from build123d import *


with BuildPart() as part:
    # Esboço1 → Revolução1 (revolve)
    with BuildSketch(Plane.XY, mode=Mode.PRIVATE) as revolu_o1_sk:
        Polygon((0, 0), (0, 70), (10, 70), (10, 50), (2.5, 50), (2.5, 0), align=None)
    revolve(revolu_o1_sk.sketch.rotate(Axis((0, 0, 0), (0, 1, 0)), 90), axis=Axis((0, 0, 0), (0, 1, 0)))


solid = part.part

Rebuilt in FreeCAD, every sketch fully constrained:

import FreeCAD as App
import Part
import Sketcher
from FreeCAD import Vector

doc = App.newDocument("Part")
params = doc.addObject("Spreadsheet::Sheet", "Params")
for row, (alias, value) in enumerate([
    ("sketch1_width", "10 mm"),
    ("sketch1_height", "70 mm"),
    ("sketch1_height2", "50 mm"),
    ("sketch1_width2", "2.5 mm"),
    ("revolution_angle", "360 deg"),
], start=1):
    params.set(f"A{row}", alias)
    params.set(f"B{row}", "=" + value)
    params.setAlias(f"B{row}", alias)

body = doc.addObject("PartDesign::Body", "Body")

# Sketch on XY plane
sketch1 = doc.addObject("Sketcher::SketchObject", "Sketch")
body.addObject(sketch1)
sketch1.AttachmentSupport = (doc.XY_Plane, [""])
sketch1.MapMode = "FlatFace"
sketch1.addGeometry(Part.LineSegment(Vector(0, 70, 0), Vector(0, 0, 0)), False)
sketch1.addGeometry(Part.LineSegment(Vector(0, 0, 0), Vector(2.5, 0, 0)), False)
sketch1.addGeometry(Part.LineSegment(Vector(2.5, 0, 0), Vector(2.5, 50, 0)), False)
sketch1.addGeometry(Part.LineSegment(Vector(2.5, 50, 0), Vector(10, 50, 0)), False)
sketch1.addGeometry(Part.LineSegment(Vector(10, 50, 0), Vector(10, 70, 0)), False)
sketch1.addGeometry(Part.LineSegment(Vector(10, 70, 0), Vector(0, 70, 0)), False)
sketch1.addConstraint(Sketcher.Constraint("Coincident", 0, 2, 1, 1))
sketch1.addConstraint(Sketcher.Constraint("Coincident", 1, 2, 2, 1))
sketch1.addConstraint(Sketcher.Constraint("Coincident", 2, 2, 3, 1))
sketch1.addConstraint(Sketcher.Constraint("Coincident", 3, 2, 4, 1))
sketch1.addConstraint(Sketcher.Constraint("Coincident", 4, 2, 5, 1))
sketch1.addConstraint(Sketcher.Constraint("Coincident", 5, 2, 0, 1))
sketch1.addConstraint(Sketcher.Constraint("Vertical", 0))
sketch1.addConstraint(Sketcher.Constraint("Horizontal", 1))
sketch1.addConstraint(Sketcher.Constraint("Vertical", 2))
sketch1.addConstraint(Sketcher.Constraint("Horizontal", 3))
sketch1.addConstraint(Sketcher.Constraint("Vertical", 4))
sketch1.addConstraint(Sketcher.Constraint("Horizontal", 5))
sketch1.addConstraint(Sketcher.Constraint("Coincident", 0, 2, -1, 1))
sketch1.addConstraint(Sketcher.Constraint("DistanceX", 5, 2, 5, 1, 10.0))
sketch1.addConstraint(Sketcher.Constraint("DistanceY", 0, 2, 0, 1, 70.0))
sketch1.addConstraint(Sketcher.Constraint("DistanceY", 2, 1, 2, 2, 50.0))
sketch1.addConstraint(Sketcher.Constraint("DistanceX", 1, 1, 1, 2, 2.5))
sketch1.setExpression("Constraints[13]", "Params.sketch1_width")
sketch1.setExpression("Constraints[14]", "Params.sketch1_height")
sketch1.setExpression("Constraints[15]", "Params.sketch1_height2")
sketch1.setExpression("Constraints[16]", "Params.sketch1_width2")
revolution = doc.addObject("PartDesign::Revolution", "Revolution")
body.addObject(revolution)
revolution.Profile = sketch1
revolution.ReferenceAxis = (sketch1, ["V_Axis"])
revolution.setExpression("Angle", "Params.revolution_angle")

doc.recompute()
